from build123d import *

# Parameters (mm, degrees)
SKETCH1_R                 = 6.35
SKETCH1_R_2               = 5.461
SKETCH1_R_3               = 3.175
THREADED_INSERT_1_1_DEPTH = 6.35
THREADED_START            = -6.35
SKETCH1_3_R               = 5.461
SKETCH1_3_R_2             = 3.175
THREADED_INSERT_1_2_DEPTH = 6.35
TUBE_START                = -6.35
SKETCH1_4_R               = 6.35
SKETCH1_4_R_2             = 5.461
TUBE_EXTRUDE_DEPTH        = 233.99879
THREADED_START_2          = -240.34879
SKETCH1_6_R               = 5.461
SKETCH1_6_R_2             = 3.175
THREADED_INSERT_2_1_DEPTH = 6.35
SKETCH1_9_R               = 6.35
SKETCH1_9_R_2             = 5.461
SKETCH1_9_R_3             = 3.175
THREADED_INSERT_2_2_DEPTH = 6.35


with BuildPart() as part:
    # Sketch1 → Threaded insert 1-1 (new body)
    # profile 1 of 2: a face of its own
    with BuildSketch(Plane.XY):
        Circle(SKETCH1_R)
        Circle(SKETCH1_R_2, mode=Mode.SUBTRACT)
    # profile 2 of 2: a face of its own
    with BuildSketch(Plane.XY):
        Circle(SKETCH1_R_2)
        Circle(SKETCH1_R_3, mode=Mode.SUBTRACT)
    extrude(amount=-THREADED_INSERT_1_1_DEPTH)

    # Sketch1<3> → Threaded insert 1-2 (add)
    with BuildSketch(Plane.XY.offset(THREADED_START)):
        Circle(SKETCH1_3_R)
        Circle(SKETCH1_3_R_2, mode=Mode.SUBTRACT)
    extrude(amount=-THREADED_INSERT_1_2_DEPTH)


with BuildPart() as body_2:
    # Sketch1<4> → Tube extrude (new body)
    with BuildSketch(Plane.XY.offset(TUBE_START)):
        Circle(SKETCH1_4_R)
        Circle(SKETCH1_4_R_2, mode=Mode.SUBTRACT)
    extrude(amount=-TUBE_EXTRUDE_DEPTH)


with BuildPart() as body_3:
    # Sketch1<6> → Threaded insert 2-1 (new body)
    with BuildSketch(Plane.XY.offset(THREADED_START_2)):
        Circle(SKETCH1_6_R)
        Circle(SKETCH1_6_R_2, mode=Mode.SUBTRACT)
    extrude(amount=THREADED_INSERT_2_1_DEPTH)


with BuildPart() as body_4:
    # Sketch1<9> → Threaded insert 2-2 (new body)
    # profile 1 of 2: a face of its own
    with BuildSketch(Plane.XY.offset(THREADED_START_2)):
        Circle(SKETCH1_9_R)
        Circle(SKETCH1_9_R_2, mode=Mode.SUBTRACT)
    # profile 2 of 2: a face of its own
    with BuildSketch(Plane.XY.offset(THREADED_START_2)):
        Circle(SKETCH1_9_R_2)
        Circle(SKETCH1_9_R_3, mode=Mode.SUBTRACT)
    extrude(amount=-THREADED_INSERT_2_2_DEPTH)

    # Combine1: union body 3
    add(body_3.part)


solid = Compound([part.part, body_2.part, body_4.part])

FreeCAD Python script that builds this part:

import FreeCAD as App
import Part
import Sketcher
from FreeCAD import Vector
Q = App.Units.Quantity

doc = App.newDocument("Part")
body = doc.addObject("PartDesign::Body", "Body")

sketch1 = body.newObject("Sketcher::SketchObject", "Sketch")
sketch1.AttachmentSupport = (doc.getObject("XY_Plane"), [""])
sketch1.MapMode = "FlatFace"
sketch1.addGeometry([
    Part.Circle(Vector(0, 0, 0), Vector(0, 0, 1), 6.3),
    Part.Circle(Vector(0, 0, 0), Vector(0, 0, 1), 3.2),
], False)
sketch1.addConstraint([
    Sketcher.Constraint("Coincident", 0, 3, -1, 1),
    Sketcher.Constraint("Coincident", 1, 3, -1, 1),
    Sketcher.Constraint("Diameter", 0, Q("0.5 in")),
    Sketcher.Constraint("Diameter", 1, Q("0.25 in")),
])
pad1 = body.newObject("PartDesign::Pad", "Pad")
pad1.Profile = sketch1
pad1.Length = Q("0.25 in")
pad1.Reversed = True

sketch2 = body.newObject("Sketcher::SketchObject", "Sketch001")
sketch2.AttachmentSupport = (doc.getObject("XY_Plane"), [""])
sketch2.MapMode = "FlatFace"
sketch2.AttachmentOffset = App.Placement(Vector(0, 0, -0.25 * 25.4), App.Rotation())
sketch2.addGeometry([
    Part.Circle(Vector(0, 0, 0), Vector(0, 0, 1), 5.5),
    Part.Circle(Vector(0, 0, 0), Vector(0, 0, 1), 3.2),
], False)
sketch2.addConstraint([
    Sketcher.Constraint("Coincident", 0, 3, -1, 1),
    Sketcher.Constraint("Coincident", 1, 3, -1, 1),
    Sketcher.Constraint("Diameter", 0, Q("0.43 in")),
    Sketcher.Constraint("Diameter", 1, Q("0.25 in")),
])
pad2 = body.newObject("PartDesign::Pad", "Pad001")
pad2.Profile = sketch2
pad2.Length = Q("0.25 in")
pad2.Reversed = True
body2 = doc.addObject("PartDesign::Body", "Body001")

sketch3 = body2.newObject("Sketcher::SketchObject", "Sketch002")
sketch3.AttachmentSupport = (doc.getObject("XY_Plane001"), [""])
sketch3.MapMode = "FlatFace"
sketch3.AttachmentOffset = App.Placement(Vector(0, 0, -0.25 * 25.4), App.Rotation())
sketch3.addGeometry([
    Part.Circle(Vector(0, 0, 0), Vector(0, 0, 1), 6),
    Part.Circle(Vector(0, 0, 0), Vector(0, 0, 1), 5),
], False)
sketch3.addConstraint([
    Sketcher.Constraint("Coincident", 0, 3, -1, 1),
    Sketcher.Constraint("Coincident", 1, 3, -1, 1),
    Sketcher.Constraint("Diameter", 0, Q("0.5 in")),
    Sketcher.Constraint("Diameter", 1, Q("0.43 in")),
])
pad3 = body2.newObject("PartDesign::Pad", "Pad002")
pad3.Profile = sketch3
pad3.Length = 233.99879
pad3.Reversed = True
body3 = doc.addObject("PartDesign::Body", "Body002")

sketch4 = body3.newObject("Sketcher::SketchObject", "Sketch003")
sketch4.AttachmentSupport = (doc.getObject("XY_Plane002"), [""])
sketch4.MapMode = "FlatFace"
sketch4.AttachmentOffset = App.Placement(Vector(0, 0, -240.34879), App.Rotation())
sketch4.addGeometry([
    Part.Circle(Vector(0, 0, 0), Vector(0, 0, 1), 5.5),
    Part.Circle(Vector(0, 0, 0), Vector(0, 0, 1), 3.2),
], False)
sketch4.addConstraint([
    Sketcher.Constraint("Coincident", 0, 3, -1, 1),
    Sketcher.Constraint("Coincident", 1, 3, -1, 1),
    Sketcher.Constraint("Diameter", 0, Q("0.43 in")),
    Sketcher.Constraint("Diameter", 1, Q("0.25 in")),
])
pad4 = body3.newObject("PartDesign::Pad", "Pad003")
pad4.Profile = sketch4
pad4.Length = Q("0.25 in")
body4 = doc.addObject("PartDesign::Body", "Body003")

sketch5 = body4.newObject("Sketcher::SketchObject", "Sketch004")
sketch5.AttachmentSupport = (doc.getObject("XY_Plane003"), [""])
sketch5.MapMode = "FlatFace"
sketch5.AttachmentOffset = App.Placement(Vector(0, 0, -240.34879), App.Rotation())
sketch5.addGeometry([
    Part.Circle(Vector(0, 0, 0), Vector(0, 0, 1), 6.3),
    Part.Circle(Vector(0, 0, 0), Vector(0, 0, 1), 3.2),
], False)
sketch5.addConstraint([
    Sketcher.Constraint("Coincident", 0, 3, -1, 1),
    Sketcher.Constraint("Coincident", 1, 3, -1, 1),
    Sketcher.Constraint("Diameter", 0, Q("0.5 in")),
    Sketcher.Constraint("Diameter", 1, Q("0.25 in")),
])
pad5 = body4.newObject("PartDesign::Pad", "Pad004")
pad5.Profile = sketch5
pad5.Length = Q("0.25 in")
pad5.Reversed = True
doc.recompute()

boolean = body4.newObject("PartDesign::Boolean", "Boolean")
boolean.Type = "Fuse"
boolean.addObjects([body3])

doc.recompute()
